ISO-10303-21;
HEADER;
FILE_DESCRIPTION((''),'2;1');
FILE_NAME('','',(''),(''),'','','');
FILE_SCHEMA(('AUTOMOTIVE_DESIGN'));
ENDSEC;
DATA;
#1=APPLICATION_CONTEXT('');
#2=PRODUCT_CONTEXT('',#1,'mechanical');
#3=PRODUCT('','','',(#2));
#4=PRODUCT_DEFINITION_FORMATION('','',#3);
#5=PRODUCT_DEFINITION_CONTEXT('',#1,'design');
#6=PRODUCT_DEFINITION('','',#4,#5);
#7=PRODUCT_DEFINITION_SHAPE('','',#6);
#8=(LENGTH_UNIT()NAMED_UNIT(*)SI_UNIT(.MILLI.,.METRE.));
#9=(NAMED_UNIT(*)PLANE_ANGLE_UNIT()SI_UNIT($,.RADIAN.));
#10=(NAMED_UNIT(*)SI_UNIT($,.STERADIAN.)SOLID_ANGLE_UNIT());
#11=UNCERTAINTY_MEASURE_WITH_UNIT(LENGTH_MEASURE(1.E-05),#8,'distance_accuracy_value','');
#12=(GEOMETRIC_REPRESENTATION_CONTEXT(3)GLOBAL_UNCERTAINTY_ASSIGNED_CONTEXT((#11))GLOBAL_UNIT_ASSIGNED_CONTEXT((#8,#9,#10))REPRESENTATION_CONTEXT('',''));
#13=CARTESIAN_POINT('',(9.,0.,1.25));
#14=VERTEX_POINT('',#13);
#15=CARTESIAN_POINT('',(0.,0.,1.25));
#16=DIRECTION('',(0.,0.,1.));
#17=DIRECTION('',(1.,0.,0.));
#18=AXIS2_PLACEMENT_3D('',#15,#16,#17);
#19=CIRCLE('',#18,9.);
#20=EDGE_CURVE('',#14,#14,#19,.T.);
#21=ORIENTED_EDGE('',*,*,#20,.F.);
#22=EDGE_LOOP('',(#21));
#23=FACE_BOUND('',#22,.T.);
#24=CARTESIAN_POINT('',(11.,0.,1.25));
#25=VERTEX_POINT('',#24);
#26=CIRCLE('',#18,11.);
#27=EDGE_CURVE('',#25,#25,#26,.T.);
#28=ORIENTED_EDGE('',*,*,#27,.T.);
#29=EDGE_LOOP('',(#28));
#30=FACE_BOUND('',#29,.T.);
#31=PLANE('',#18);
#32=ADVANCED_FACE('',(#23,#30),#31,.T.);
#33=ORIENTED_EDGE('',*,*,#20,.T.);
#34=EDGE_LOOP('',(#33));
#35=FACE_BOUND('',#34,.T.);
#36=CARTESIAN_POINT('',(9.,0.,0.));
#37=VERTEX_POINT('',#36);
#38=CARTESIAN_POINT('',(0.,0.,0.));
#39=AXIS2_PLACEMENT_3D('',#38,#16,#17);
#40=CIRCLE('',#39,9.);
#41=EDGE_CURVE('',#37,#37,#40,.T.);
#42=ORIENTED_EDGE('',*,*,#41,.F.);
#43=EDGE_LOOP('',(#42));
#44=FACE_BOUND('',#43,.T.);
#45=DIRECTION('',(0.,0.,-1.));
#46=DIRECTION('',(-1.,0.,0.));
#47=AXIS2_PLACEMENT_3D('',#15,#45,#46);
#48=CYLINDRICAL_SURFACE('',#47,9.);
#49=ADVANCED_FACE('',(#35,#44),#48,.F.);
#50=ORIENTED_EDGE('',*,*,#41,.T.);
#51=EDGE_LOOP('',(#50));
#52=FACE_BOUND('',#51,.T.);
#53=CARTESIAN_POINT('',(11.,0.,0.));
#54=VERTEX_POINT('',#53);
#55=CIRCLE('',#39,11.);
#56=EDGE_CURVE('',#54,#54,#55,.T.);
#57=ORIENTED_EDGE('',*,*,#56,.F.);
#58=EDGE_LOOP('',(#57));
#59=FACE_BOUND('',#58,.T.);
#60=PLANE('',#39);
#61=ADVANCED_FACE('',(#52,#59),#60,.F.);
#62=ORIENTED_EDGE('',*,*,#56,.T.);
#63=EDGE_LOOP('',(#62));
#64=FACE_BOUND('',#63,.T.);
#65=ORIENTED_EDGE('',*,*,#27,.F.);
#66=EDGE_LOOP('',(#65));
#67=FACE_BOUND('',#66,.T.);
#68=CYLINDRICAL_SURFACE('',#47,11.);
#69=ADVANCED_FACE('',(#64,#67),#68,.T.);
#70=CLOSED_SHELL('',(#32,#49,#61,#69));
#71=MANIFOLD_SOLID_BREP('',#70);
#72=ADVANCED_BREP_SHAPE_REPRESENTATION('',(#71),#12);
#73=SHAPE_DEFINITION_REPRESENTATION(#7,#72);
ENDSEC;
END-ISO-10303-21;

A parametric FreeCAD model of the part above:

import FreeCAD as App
import Part
import Sketcher

V = App.Vector
Q = App.Units.Quantity

doc = App.newDocument("Part")
body = doc.addObject("PartDesign::Body", "Body")

sketch1 = body.newObject("Sketcher::SketchObject", "Sketch")
sketch1.AttachmentSupport = (doc.getObject("XY_Plane"), [""])
sketch1.MapMode = "FlatFace"
sketch1.addGeometry([
    Part.Circle(V(0, 0, 0), V(0, 0, 1), 11),
    Part.Circle(V(0, 0, 0), V(0, 0, 1), 9),
], False)
sketch1.addConstraint([
    Sketcher.Constraint("Coincident", 0, 3, -1, 1),
    Sketcher.Constraint("Coincident", 1, 3, -1, 1),
    Sketcher.Constraint("Diameter", 0, Q("22 mm")),
    Sketcher.Constraint("Diameter", 1, Q("18 mm")),
])
pad1 = body.newObject("PartDesign::Pad", "Pad")
pad1.Profile = sketch1
pad1.Length = 1.25

doc.recompute()
